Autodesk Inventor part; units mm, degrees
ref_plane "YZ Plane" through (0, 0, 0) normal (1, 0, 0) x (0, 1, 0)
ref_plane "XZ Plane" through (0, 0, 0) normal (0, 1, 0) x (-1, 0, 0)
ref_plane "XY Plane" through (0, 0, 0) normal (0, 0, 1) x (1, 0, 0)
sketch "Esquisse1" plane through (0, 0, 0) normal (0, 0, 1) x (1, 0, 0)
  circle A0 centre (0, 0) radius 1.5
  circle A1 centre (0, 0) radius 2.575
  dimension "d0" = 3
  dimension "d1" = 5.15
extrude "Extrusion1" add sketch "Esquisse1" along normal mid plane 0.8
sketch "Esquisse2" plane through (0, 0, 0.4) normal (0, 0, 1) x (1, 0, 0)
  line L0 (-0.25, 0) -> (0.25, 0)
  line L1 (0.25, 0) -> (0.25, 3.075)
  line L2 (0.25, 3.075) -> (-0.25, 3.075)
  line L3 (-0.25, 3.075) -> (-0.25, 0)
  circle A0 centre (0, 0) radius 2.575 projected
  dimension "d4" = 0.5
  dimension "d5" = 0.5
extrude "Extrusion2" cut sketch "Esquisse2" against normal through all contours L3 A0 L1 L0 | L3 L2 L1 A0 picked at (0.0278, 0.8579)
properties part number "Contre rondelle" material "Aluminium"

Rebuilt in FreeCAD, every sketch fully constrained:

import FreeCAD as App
import Part
import Sketcher
from FreeCAD import Vector

doc = App.newDocument("Part")
body = doc.addObject("PartDesign::Body", "Body")

sketch1 = body.newObject("Sketcher::SketchObject", "Sketch")
sketch1.AttachmentSupport = (doc.getObject("XY_Plane"), [""])
sketch1.MapMode = "FlatFace"
sketch1.addGeometry(Part.Circle(Vector(0, 0, 0), Vector(0, 0, 1), 2.575), False)
sketch1.addGeometry(Part.Circle(Vector(0, 0, 0), Vector(0, 0, 1), 1.5), False)
sketch1.addConstraint(Sketcher.Constraint("Coincident", 0, 3, -1, 1))
sketch1.addConstraint(Sketcher.Constraint("Coincident", 1, 3, -1, 1))
sketch1.addConstraint(Sketcher.Constraint("Diameter", 1, 3.0))
sketch1.addConstraint(Sketcher.Constraint("Diameter", 0, 5.15))
pad1 = body.newObject("PartDesign::Pad", "Pad")
pad1.Profile = sketch1
pad1.Length = 0.8
pad1.Midplane = True

sketch2 = body.newObject("Sketcher::SketchObject", "Sketch001")
sketch2.AttachmentSupport = (doc.getObject("XY_Plane"), [""])
sketch2.MapMode = "FlatFace"
sketch2.AttachmentOffset = App.Placement(Vector(0, 0, 0.4), App.Rotation())
sketch2.addGeometry(Part.LineSegment(Vector(-0.25, 0, 0), Vector(0.25, 0, 0)), False)
sketch2.addGeometry(Part.LineSegment(Vector(0.25, 0, 0), Vector(0.25, 3.075, 0)), False)
sketch2.addGeometry(Part.LineSegment(Vector(0.25, 3.075, 0), Vector(-0.25, 3.075, 0)), False)
sketch2.addGeometry(Part.LineSegment(Vector(-0.25, 3.075, 0), Vector(-0.25, 0, 0)), False)
sketch2.addConstraint(Sketcher.Constraint("Coincident", 0, 2, 1, 1))
sketch2.addConstraint(Sketcher.Constraint("Coincident", 1, 2, 2, 1))
sketch2.addConstraint(Sketcher.Constraint("Coincident", 2, 2, 3, 1))
sketch2.addConstraint(Sketcher.Constraint("Coincident", 3, 2, 0, 1))
sketch2.addConstraint(Sketcher.Constraint("Horizontal", 0))
sketch2.addConstraint(Sketcher.Constraint("Vertical", 1))
sketch2.addConstraint(Sketcher.Constraint("Horizontal", 2))
sketch2.addConstraint(Sketcher.Constraint("Vertical", 3))
sketch2.addConstraint(Sketcher.Constraint("Symmetric", 0, 2, 3, 2, -1, 1))
sketch2.addConstraint(Sketcher.Constraint("DistanceX", 0, 1, 0, 2, 0.5))
sketch2.addConstraint(Sketcher.Constraint("DistanceY", 1, 1, 1, 2, 3.075))
pocket1 = body.newObject("PartDesign::Pocket", "Pocket")
pocket1.Profile = sketch2
pocket1.Type = "ThroughAll"

doc.recompute()
